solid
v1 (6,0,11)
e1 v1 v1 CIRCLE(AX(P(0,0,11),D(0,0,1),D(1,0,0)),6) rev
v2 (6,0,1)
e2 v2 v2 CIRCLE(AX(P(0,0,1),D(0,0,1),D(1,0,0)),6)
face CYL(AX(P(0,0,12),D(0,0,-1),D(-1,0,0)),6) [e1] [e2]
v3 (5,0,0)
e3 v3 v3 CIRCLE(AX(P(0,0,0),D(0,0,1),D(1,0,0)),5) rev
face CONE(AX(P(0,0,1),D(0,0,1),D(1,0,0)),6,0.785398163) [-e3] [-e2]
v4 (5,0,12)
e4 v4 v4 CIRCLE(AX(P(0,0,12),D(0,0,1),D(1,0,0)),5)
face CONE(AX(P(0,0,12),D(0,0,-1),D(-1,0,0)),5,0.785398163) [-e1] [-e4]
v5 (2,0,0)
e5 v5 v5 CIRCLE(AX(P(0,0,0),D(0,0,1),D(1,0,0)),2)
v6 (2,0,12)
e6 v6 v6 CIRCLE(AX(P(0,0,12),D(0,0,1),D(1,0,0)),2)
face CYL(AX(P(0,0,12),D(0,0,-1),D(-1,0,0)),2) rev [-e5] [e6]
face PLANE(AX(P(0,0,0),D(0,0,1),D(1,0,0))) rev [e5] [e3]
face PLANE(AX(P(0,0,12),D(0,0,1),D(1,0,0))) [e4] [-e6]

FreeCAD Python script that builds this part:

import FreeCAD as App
import Part
import Sketcher
from FreeCAD import Vector


def edges_at(feature, points):
    """Names of the edges that pass closest to the given points."""
    edges = feature.Shape.Edges
    near = lambda p: min(range(len(edges)), key=lambda i: edges[i].distToShape(Part.Vertex(*p))[0])
    return sorted({f"Edge{near(p) + 1}" for p in points})

doc = App.newDocument("Part")
body = doc.addObject("PartDesign::Body", "Body")

# Sketch on XY plane
sketch1 = body.newObject("Sketcher::SketchObject", "Sketch")
sketch1.AttachmentSupport = (doc.getObject("XY_Plane"), [""])
sketch1.MapMode = "FlatFace"
sketch1.addGeometry(Part.Circle(Vector(0, 0, 0), Vector(0, 0, 1), 6), False)
sketch1.addConstraint(Sketcher.Constraint("Coincident", 0, 3, -1, 1))
sketch1.addConstraint(Sketcher.Constraint("Diameter", 0, 12.0))
pad1 = body.newObject("PartDesign::Pad", "Pad")
pad1.Profile = sketch1
pad1.Length = 12

# Sketch on XY plane
sketch2 = body.newObject("Sketcher::SketchObject", "Sketch001")
sketch2.AttachmentSupport = (doc.getObject("XY_Plane"), [""])
sketch2.MapMode = "FlatFace"
sketch2.addGeometry(Part.Circle(Vector(0, 0, 0), Vector(0, 0, 1), 2), False)
sketch2.addConstraint(Sketcher.Constraint("Coincident", 0, 3, -1, 1))
sketch2.addConstraint(Sketcher.Constraint("Diameter", 0, 4.0))
pocket1 = body.newObject("PartDesign::Pocket", "Pocket")
pocket1.Profile = sketch2
pocket1.Type = "ThroughAll"
pocket1.Reversed = True
doc.recompute()

chamfer = body.newObject("PartDesign::Chamfer", "Chamfer")
chamfer.Base = (pocket1, edges_at(pocket1, [(-6, 0, 0), (-6, 0, 12)]))
chamfer.Size = 1

doc.recompute()
